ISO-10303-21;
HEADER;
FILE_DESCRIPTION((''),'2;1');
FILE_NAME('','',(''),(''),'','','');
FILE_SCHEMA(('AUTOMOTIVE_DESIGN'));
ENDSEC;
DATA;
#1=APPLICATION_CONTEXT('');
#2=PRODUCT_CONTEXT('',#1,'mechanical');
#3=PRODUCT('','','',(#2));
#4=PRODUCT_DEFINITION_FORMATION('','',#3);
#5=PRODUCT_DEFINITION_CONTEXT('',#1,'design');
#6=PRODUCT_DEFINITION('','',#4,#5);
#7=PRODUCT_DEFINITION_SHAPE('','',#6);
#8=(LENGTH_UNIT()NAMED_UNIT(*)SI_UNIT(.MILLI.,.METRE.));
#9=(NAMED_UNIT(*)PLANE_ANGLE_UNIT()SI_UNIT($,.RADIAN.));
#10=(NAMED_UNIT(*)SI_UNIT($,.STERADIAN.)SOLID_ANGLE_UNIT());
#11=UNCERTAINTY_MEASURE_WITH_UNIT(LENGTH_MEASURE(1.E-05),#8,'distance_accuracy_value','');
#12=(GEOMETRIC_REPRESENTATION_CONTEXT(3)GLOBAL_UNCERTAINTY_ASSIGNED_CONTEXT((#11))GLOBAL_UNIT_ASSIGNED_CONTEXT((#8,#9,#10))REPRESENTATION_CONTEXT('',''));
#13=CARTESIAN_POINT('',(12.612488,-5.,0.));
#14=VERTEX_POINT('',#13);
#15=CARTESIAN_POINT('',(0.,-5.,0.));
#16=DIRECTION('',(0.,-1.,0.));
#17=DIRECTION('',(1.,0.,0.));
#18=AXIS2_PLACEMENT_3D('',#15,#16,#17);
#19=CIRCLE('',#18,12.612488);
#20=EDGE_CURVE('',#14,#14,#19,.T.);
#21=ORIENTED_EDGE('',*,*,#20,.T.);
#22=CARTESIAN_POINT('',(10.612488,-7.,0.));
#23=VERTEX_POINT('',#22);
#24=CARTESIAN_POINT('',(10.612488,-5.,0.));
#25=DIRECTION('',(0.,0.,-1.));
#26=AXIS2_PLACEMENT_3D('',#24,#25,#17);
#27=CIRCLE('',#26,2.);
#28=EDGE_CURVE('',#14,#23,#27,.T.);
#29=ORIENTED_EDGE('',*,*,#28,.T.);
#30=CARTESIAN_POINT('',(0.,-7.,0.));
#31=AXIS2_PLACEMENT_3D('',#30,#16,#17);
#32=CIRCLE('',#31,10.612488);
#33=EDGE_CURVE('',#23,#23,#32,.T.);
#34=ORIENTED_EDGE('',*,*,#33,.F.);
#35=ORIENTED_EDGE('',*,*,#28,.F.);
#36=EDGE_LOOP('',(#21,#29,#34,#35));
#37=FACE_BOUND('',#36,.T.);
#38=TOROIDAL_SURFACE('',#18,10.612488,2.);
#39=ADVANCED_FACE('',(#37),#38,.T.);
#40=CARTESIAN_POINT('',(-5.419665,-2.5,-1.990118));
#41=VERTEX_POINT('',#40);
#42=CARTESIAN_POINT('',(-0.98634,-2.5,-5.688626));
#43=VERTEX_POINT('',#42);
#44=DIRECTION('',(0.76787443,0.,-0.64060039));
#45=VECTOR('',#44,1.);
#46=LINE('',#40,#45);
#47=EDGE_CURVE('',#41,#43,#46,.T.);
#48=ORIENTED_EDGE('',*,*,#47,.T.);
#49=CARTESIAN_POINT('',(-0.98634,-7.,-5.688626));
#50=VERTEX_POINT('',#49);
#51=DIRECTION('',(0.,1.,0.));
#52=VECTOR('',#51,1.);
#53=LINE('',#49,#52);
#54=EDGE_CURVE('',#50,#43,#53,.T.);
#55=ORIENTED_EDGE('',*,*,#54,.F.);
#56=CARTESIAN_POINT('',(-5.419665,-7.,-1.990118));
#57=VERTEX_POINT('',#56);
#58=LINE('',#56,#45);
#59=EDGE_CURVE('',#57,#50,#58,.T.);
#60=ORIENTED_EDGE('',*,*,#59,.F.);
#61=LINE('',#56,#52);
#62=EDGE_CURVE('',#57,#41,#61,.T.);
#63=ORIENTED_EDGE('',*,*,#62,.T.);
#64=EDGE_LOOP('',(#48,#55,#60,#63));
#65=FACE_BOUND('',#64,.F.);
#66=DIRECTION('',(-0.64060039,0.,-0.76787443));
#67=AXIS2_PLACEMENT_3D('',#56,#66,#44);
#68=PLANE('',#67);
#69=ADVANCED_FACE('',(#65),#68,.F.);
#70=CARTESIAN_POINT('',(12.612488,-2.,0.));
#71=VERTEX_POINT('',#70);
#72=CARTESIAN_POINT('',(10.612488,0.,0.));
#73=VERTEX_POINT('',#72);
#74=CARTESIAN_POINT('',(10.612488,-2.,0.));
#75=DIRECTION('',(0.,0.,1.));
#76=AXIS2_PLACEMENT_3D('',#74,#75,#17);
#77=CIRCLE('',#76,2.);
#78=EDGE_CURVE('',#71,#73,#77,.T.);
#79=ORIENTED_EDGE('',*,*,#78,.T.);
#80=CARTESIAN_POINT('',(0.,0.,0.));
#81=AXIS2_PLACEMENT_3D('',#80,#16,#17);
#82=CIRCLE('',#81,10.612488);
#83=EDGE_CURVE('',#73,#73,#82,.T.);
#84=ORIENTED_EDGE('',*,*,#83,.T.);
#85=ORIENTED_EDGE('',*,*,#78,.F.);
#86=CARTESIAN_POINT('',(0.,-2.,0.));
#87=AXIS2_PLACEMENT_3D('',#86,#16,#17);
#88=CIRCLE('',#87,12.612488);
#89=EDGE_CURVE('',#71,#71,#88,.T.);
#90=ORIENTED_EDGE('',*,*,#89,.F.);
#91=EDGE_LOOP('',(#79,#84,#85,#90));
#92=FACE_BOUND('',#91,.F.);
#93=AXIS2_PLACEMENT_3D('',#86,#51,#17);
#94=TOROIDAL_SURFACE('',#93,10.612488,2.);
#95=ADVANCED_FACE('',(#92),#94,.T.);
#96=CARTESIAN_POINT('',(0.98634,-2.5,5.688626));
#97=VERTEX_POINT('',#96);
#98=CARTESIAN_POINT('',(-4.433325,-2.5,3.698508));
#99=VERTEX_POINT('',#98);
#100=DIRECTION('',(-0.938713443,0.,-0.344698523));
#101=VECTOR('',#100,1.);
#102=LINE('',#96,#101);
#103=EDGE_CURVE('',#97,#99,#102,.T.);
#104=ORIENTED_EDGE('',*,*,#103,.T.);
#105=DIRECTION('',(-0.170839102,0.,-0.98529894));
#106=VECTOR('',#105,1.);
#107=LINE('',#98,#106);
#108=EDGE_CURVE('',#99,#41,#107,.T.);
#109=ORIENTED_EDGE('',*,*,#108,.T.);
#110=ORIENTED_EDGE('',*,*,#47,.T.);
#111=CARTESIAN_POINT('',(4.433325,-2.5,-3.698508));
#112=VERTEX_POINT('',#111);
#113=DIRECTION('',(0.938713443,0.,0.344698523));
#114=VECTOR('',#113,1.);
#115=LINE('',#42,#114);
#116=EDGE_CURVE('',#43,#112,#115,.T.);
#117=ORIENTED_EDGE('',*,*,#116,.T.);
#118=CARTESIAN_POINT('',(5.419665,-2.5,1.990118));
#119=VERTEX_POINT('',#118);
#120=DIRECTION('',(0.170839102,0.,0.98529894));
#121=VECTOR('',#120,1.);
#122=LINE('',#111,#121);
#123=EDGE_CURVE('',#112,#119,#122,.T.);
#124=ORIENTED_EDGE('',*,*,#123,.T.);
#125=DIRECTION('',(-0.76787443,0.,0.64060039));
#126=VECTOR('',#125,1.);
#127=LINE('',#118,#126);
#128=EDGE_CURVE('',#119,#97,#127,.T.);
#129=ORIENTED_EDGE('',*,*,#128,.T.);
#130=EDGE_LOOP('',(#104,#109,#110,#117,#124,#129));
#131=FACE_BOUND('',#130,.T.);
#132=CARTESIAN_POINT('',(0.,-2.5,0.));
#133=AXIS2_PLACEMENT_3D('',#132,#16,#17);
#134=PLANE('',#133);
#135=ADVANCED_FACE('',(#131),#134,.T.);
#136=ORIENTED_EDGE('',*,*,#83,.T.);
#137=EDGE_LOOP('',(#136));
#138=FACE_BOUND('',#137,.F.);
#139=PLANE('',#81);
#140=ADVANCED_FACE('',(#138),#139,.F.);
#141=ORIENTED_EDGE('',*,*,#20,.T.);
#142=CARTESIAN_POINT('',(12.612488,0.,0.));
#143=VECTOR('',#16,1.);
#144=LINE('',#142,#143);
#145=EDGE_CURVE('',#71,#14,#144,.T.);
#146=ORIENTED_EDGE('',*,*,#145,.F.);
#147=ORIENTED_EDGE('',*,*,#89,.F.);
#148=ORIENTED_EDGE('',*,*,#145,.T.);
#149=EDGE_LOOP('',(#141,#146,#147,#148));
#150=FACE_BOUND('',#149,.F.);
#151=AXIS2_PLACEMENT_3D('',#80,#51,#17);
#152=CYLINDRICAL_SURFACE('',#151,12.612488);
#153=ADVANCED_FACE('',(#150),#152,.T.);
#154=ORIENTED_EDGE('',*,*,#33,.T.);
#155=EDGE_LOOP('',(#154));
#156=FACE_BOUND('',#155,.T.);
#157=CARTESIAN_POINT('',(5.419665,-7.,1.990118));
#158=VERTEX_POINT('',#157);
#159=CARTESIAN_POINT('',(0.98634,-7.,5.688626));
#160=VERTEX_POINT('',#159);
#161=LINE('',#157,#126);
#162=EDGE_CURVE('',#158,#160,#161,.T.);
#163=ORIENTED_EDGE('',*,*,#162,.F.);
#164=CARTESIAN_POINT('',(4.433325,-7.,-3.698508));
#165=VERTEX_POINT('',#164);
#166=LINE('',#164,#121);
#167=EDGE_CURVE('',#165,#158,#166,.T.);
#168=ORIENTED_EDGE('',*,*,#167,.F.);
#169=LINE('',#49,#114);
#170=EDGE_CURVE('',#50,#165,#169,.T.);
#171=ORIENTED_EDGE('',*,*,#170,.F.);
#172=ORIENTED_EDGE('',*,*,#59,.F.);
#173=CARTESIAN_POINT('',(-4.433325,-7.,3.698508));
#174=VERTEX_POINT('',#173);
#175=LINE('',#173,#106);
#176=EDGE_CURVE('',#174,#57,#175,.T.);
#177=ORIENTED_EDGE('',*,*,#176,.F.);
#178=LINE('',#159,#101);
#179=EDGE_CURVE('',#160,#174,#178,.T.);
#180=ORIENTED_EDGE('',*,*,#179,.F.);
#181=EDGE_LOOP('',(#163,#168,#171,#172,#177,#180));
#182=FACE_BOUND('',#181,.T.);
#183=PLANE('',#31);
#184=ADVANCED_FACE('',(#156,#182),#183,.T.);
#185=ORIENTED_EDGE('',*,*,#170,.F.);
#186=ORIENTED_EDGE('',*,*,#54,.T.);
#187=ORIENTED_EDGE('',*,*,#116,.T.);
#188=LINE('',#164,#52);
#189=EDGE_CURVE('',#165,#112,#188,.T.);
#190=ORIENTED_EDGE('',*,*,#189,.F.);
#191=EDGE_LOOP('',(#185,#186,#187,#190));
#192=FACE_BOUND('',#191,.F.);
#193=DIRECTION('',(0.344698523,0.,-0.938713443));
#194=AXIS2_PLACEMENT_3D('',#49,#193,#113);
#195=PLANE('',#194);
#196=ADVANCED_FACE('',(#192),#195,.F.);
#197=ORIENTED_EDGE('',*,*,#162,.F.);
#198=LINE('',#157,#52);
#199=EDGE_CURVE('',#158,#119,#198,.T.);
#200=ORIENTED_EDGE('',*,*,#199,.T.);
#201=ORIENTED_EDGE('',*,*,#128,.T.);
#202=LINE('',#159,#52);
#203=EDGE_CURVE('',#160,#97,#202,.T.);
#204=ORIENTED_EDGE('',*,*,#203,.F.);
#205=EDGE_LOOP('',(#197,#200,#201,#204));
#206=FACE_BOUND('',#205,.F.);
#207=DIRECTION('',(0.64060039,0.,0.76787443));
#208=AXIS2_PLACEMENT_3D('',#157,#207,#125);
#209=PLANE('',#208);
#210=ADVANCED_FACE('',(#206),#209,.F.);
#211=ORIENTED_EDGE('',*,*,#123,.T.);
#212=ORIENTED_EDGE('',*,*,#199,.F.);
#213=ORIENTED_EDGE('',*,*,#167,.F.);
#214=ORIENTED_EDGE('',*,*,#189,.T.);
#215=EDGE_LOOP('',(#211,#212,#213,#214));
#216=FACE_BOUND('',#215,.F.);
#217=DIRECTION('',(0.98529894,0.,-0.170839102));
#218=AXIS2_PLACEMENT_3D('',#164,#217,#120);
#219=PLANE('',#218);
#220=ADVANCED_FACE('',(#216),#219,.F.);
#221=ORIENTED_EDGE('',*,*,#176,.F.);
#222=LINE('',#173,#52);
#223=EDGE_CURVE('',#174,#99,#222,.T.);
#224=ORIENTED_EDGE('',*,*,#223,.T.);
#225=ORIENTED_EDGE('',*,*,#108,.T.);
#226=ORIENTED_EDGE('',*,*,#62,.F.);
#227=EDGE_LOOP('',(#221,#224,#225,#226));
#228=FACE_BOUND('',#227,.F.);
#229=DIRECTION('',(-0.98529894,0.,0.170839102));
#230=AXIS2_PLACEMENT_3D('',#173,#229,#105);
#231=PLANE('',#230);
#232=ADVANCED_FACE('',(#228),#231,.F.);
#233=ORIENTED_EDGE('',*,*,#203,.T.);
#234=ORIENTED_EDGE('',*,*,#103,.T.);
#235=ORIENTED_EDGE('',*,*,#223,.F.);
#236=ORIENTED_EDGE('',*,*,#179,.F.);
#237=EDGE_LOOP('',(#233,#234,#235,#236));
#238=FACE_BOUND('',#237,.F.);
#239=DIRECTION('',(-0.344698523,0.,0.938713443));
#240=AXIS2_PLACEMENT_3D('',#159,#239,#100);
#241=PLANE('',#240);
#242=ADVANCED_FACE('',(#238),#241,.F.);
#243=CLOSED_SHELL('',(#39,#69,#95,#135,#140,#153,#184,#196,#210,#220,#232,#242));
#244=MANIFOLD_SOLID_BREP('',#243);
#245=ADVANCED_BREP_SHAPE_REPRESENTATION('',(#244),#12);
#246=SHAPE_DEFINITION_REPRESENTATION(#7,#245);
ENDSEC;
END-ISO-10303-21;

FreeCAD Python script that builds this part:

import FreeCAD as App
import Part
import Sketcher


def edges_at(feature, points):
    """Names of the edges that pass closest to the given points."""
    edges = feature.Shape.Edges
    near = lambda p: min(range(len(edges)), key=lambda i: edges[i].distToShape(Part.Vertex(*p))[0])
    return sorted({f"Edge{near(p) + 1}" for p in points})

doc = App.newDocument("Part")
params = doc.addObject("Spreadsheet::Sheet", "Params")
for row, (alias, value) in enumerate([
    ("pad1_length", "7 mm"),
    ("pocket1_length", "4.5 mm"),
    ("fillet_radius", "2 mm"),
], start=1):
    params.set(f"A{row}", alias)
    params.set(f"B{row}", "=" + value)
    params.setAlias(f"B{row}", alias)

body = doc.addObject("PartDesign::Body", "Body")

sketch1 = body.newObject("Sketcher::SketchObject", "Sketch")
sketch1.AttachmentSupport = (doc.getObject("XZ_Plane"), [""])
sketch1.MapMode = "FlatFace"
sketch1.addGeometry(Part.Circle(App.Vector(0, 0, 0), App.Vector(0, 0, 1), 13), False)
sketch1.addConstraint([
    Sketcher.Constraint("Coincident", 0, 3, -1, 1),
    Sketcher.Constraint("Diameter", 0, 25.224976),
])
pad1 = body.newObject("PartDesign::Pad", "Pad")
pad1.Profile = sketch1
pad1.setExpression("Length", "Params.pad1_length")

sketch2 = body.newObject("Sketcher::SketchObject", "Sketch001")
sketch2.AttachmentSupport = (doc.getObject("XZ_Plane"), [""])
sketch2.MapMode = "FlatFace"
sketch2.AttachmentOffset = App.Placement(App.Vector(0, 0, 7), App.Rotation())
sketch2.addGeometry([
    Part.LineSegment(App.Vector(4, -4, 0), App.Vector(5, 2, 0)),
    Part.LineSegment(App.Vector(5, 2, 0), App.Vector(1, 6, 0)),
    Part.LineSegment(App.Vector(1, 6, 0), App.Vector(-4, 4, 0)),
    Part.LineSegment(App.Vector(-4, 4, 0), App.Vector(-5, -2, 0)),
    Part.LineSegment(App.Vector(-5, -2, 0), App.Vector(-1, -6, 0)),
    Part.LineSegment(App.Vector(-1, -6, 0), App.Vector(4, -4, 0)),
], False)
sketch2.addConstraint([
    Sketcher.Constraint("Coincident", 0, 2, 1, 1),
    Sketcher.Constraint("Coincident", 1, 2, 2, 1),
    Sketcher.Constraint("Coincident", 2, 2, 3, 1),
    Sketcher.Constraint("Coincident", 3, 2, 4, 1),
    Sketcher.Constraint("Coincident", 4, 2, 5, 1),
    Sketcher.Constraint("Coincident", 5, 2, 0, 1),
    Sketcher.Constraint("Symmetric", 0, 2, 3, 2, -1, 1),
    Sketcher.Constraint("Symmetric", 1, 2, 4, 2, -1, 1),
    Sketcher.Constraint("Symmetric", 2, 2, 5, 2, -1, 1),
    Sketcher.Constraint("Equal", 0, 1),
    Sketcher.Constraint("Equal", 1, 2),
    Sketcher.Constraint("DistanceY", -1, 1, 0, 2, 1.990118),
    Sketcher.Constraint("DistanceX", -1, 1, 1, 2, 0.98634),
    Sketcher.Constraint("DistanceY", 0, 2, 1, 2, 3.698508),
    Sketcher.Constraint("DistanceY", 2, 2, 1, 2, 1.990118),
])
pocket1 = body.newObject("PartDesign::Pocket", "Pocket")
pocket1.Profile = sketch2
pocket1.setExpression("Length", "Params.pocket1_length")
doc.recompute()

fillet = body.newObject("PartDesign::Fillet", "Fillet")
fillet.Base = (pocket1, edges_at(pocket1, [(-12.612, -7, 0), (-12.612, 0, 0)]))
fillet.setExpression("Radius", "Params.fillet_radius")

doc.recompute()
